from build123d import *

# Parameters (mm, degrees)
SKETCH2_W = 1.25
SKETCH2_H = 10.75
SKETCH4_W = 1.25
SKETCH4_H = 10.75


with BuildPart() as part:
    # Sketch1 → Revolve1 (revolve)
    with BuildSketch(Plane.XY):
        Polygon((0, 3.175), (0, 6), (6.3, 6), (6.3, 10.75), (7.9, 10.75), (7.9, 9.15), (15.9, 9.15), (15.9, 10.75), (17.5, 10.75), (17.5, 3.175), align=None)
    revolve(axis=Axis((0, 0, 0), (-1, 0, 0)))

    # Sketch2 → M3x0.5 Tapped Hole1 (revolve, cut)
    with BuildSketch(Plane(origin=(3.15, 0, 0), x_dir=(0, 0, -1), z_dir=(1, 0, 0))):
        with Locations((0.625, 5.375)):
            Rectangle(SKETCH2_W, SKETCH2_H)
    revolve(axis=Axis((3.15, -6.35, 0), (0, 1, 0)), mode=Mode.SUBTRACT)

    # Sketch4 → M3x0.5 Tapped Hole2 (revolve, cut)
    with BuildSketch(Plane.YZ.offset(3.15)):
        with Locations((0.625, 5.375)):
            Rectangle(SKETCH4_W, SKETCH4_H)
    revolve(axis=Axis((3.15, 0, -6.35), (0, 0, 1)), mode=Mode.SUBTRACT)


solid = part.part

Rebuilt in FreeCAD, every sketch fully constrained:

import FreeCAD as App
import Part
import Sketcher


def add_polygon(sketch, points):
    """Adds a closed chain of lines whose ends are joined by coincident constraints."""
    first, n = sketch.GeometryCount, len(points)
    for a, b in zip(points, points[1:] + points[:1]):
        sketch.addGeometry(Part.LineSegment(App.Vector(*a, 0), App.Vector(*b, 0)), False)
    for i in range(n):
        sketch.addConstraint(Sketcher.Constraint("Coincident", first + i, 2, first + (i + 1) % n, 1))

doc = App.newDocument("Part")
body = doc.addObject("PartDesign::Body", "Body")

# Sketch on XY plane
sketch1 = body.newObject("Sketcher::SketchObject", "Sketch")
sketch1.AttachmentSupport = (doc.getObject("XY_Plane"), [""])
sketch1.MapMode = "FlatFace"
add_polygon(sketch1, [(0, 6), (0, 3.2), (17.5, 3.2), (17.5, 10.8), (15.9, 10.8), (15.9, 9.2), (7.9, 9.2), (7.9, 10.8), (6.3, 10.8), (6.3, 6)])  # lines 0-9
sketch1.addConstraint([
    Sketcher.Constraint("Vertical", 0),
    Sketcher.Constraint("Horizontal", 1),
    Sketcher.Constraint("Vertical", 2),
    Sketcher.Constraint("Horizontal", 3),
    Sketcher.Constraint("Vertical", 4),
    Sketcher.Constraint("Horizontal", 5),
    Sketcher.Constraint("Vertical", 6),
    Sketcher.Constraint("Horizontal", 7),
    Sketcher.Constraint("Vertical", 8),
    Sketcher.Constraint("Horizontal", 9),
    Sketcher.Constraint("PointOnObject", 0, 2, -2),
    Sketcher.Constraint("Horizontal", 3, 2, 6, 2),
    Sketcher.Constraint("Equal", 3, 7),
    Sketcher.Constraint("Equal", 7, 4),
    Sketcher.Constraint("DistanceX", 5, 2, 5, 1, 8.0),
    Sketcher.Constraint("DistanceX", 1, 1, 1, 2, 17.5),
    Sketcher.Constraint("DistanceX", 3, 2, 3, 1, 1.6),
    Sketcher.Constraint("DistanceY", -1, 1, 8, 2, 6.0),
    Sketcher.Constraint("DistanceY", 8, 2, 8, 1, 4.75),
    Sketcher.Constraint("DistanceY", 0, 2, 0, 1, 2.825),
])
revolution = body.newObject("PartDesign::Revolution", "Revolution")
revolution.Profile = sketch1
revolution.ReferenceAxis = (sketch1, ["H_Axis"])
revolution.Angle = 360

# Sketch on YZ plane
sketch2 = body.newObject("Sketcher::SketchObject", "Sketch001")
sketch2.AttachmentSupport = (doc.getObject("YZ_Plane"), [""])
sketch2.MapMode = "FlatFace"
sketch2.AttachmentOffset = App.Placement(App.Vector(0, 0, 3.15), App.Rotation())
add_polygon(sketch2, [(10.8, 0), (0, 0), (0, -1.2), (10.8, -1.2)])  # lines 0-3
sketch2.addConstraint([
    Sketcher.Constraint("Horizontal", 0),
    Sketcher.Constraint("Vertical", 1),
    Sketcher.Constraint("Horizontal", 2),
    Sketcher.Constraint("Vertical", 3),
    Sketcher.Constraint("Coincident", 0, 2, -1, 1),
    Sketcher.Constraint("DistanceX", 0, 2, 0, 1, 10.75),
    Sketcher.Constraint("DistanceY", 1, 2, 1, 1, 1.25),
])
groove = body.newObject("PartDesign::Groove", "Groove")
groove.Profile = sketch2
groove.ReferenceAxis = (sketch2, ["H_Axis"])
groove.Angle = 360

# Sketch on YZ plane
sketch3 = body.newObject("Sketcher::SketchObject", "Sketch002")
sketch3.AttachmentSupport = (doc.getObject("YZ_Plane"), [""])
sketch3.MapMode = "FlatFace"
sketch3.AttachmentOffset = App.Placement(App.Vector(0, 0, 3.15), App.Rotation())
add_polygon(sketch3, [(0, 10.8), (0, 0), (1.2, 0), (1.2, 10.8)])  # lines 0-3
sketch3.addConstraint([
    Sketcher.Constraint("Vertical", 0),
    Sketcher.Constraint("Horizontal", 1),
    Sketcher.Constraint("Vertical", 2),
    Sketcher.Constraint("Horizontal", 3),
    Sketcher.Constraint("Coincident", 0, 2, -1, 1),
    Sketcher.Constraint("DistanceX", 1, 1, 1, 2, 1.25),
    Sketcher.Constraint("DistanceY", 0, 2, 0, 1, 10.75),
])
groove2 = body.newObject("PartDesign::Groove", "Groove001")
groove2.Profile = sketch3
groove2.ReferenceAxis = (sketch3, ["V_Axis"])
groove2.Angle = 360

doc.recompute()
